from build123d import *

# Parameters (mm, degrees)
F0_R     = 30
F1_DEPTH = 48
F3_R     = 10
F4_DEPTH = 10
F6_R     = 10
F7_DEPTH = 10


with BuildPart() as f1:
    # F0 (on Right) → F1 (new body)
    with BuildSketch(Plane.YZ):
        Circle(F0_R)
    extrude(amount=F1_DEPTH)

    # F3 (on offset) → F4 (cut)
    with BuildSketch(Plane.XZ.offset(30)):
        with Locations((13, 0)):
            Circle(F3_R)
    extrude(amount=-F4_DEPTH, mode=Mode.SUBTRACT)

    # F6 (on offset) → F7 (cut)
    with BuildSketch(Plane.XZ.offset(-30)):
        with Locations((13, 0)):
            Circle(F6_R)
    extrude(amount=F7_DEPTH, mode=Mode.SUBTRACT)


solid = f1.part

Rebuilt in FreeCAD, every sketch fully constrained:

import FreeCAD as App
import Part
import Sketcher

V = App.Vector
Q = App.Units.Quantity

doc = App.newDocument("Part")
body = doc.addObject("PartDesign::Body", "Body")

# Sketch on YZ plane
sketch1 = body.newObject("Sketcher::SketchObject", "Sketch")
sketch1.AttachmentSupport = (doc.getObject("YZ_Plane"), [""])
sketch1.MapMode = "FlatFace"
sketch1.addGeometry(Part.Circle(V(0, 0, 0), V(0, 0, 1), 30), False)
sketch1.addConstraint([
    Sketcher.Constraint("Coincident", 0, 3, -1, 1),
    Sketcher.Constraint("Diameter", 0, Q("60 mm")),
])
pad1 = body.newObject("PartDesign::Pad", "Pad")
pad1.Profile = sketch1
pad1.Length = 48

# Sketch on XZ plane
sketch2 = body.newObject("Sketcher::SketchObject", "Sketch001")
sketch2.AttachmentSupport = (doc.getObject("XZ_Plane"), [""])
sketch2.MapMode = "FlatFace"
sketch2.AttachmentOffset = App.Placement(V(0, 0, 30), App.Rotation())
sketch2.addGeometry(Part.Circle(V(13, 0, 0), V(0, 0, 1), 10), False)
sketch2.addConstraint([
    Sketcher.Constraint("PointOnObject", 0, 3, -1),
    Sketcher.Constraint("Diameter", 0, Q("20 mm")),
    Sketcher.Constraint("DistanceX", -1, 1, 0, 3, Q("13 mm")),
])
pocket1 = body.newObject("PartDesign::Pocket", "Pocket")
pocket1.Profile = sketch2
pocket1.Length = 10

# Sketch on XZ plane
sketch3 = body.newObject("Sketcher::SketchObject", "Sketch002")
sketch3.AttachmentSupport = (doc.getObject("XZ_Plane"), [""])
sketch3.MapMode = "FlatFace"
sketch3.AttachmentOffset = App.Placement(V(0, 0, -30), App.Rotation())
sketch3.addGeometry(Part.Circle(V(13, 0, 0), V(0, 0, 1), 10), False)
sketch3.addConstraint([
    Sketcher.Constraint("PointOnObject", 0, 3, -1),
    Sketcher.Constraint("Diameter", 0, Q("20 mm")),
    Sketcher.Constraint("DistanceX", -1, 1, 0, 3, Q("13 mm")),
])
pocket2 = body.newObject("PartDesign::Pocket", "Pocket001")
pocket2.Profile = sketch3
pocket2.Length = 10
pocket2.Reversed = True

doc.recompute()
